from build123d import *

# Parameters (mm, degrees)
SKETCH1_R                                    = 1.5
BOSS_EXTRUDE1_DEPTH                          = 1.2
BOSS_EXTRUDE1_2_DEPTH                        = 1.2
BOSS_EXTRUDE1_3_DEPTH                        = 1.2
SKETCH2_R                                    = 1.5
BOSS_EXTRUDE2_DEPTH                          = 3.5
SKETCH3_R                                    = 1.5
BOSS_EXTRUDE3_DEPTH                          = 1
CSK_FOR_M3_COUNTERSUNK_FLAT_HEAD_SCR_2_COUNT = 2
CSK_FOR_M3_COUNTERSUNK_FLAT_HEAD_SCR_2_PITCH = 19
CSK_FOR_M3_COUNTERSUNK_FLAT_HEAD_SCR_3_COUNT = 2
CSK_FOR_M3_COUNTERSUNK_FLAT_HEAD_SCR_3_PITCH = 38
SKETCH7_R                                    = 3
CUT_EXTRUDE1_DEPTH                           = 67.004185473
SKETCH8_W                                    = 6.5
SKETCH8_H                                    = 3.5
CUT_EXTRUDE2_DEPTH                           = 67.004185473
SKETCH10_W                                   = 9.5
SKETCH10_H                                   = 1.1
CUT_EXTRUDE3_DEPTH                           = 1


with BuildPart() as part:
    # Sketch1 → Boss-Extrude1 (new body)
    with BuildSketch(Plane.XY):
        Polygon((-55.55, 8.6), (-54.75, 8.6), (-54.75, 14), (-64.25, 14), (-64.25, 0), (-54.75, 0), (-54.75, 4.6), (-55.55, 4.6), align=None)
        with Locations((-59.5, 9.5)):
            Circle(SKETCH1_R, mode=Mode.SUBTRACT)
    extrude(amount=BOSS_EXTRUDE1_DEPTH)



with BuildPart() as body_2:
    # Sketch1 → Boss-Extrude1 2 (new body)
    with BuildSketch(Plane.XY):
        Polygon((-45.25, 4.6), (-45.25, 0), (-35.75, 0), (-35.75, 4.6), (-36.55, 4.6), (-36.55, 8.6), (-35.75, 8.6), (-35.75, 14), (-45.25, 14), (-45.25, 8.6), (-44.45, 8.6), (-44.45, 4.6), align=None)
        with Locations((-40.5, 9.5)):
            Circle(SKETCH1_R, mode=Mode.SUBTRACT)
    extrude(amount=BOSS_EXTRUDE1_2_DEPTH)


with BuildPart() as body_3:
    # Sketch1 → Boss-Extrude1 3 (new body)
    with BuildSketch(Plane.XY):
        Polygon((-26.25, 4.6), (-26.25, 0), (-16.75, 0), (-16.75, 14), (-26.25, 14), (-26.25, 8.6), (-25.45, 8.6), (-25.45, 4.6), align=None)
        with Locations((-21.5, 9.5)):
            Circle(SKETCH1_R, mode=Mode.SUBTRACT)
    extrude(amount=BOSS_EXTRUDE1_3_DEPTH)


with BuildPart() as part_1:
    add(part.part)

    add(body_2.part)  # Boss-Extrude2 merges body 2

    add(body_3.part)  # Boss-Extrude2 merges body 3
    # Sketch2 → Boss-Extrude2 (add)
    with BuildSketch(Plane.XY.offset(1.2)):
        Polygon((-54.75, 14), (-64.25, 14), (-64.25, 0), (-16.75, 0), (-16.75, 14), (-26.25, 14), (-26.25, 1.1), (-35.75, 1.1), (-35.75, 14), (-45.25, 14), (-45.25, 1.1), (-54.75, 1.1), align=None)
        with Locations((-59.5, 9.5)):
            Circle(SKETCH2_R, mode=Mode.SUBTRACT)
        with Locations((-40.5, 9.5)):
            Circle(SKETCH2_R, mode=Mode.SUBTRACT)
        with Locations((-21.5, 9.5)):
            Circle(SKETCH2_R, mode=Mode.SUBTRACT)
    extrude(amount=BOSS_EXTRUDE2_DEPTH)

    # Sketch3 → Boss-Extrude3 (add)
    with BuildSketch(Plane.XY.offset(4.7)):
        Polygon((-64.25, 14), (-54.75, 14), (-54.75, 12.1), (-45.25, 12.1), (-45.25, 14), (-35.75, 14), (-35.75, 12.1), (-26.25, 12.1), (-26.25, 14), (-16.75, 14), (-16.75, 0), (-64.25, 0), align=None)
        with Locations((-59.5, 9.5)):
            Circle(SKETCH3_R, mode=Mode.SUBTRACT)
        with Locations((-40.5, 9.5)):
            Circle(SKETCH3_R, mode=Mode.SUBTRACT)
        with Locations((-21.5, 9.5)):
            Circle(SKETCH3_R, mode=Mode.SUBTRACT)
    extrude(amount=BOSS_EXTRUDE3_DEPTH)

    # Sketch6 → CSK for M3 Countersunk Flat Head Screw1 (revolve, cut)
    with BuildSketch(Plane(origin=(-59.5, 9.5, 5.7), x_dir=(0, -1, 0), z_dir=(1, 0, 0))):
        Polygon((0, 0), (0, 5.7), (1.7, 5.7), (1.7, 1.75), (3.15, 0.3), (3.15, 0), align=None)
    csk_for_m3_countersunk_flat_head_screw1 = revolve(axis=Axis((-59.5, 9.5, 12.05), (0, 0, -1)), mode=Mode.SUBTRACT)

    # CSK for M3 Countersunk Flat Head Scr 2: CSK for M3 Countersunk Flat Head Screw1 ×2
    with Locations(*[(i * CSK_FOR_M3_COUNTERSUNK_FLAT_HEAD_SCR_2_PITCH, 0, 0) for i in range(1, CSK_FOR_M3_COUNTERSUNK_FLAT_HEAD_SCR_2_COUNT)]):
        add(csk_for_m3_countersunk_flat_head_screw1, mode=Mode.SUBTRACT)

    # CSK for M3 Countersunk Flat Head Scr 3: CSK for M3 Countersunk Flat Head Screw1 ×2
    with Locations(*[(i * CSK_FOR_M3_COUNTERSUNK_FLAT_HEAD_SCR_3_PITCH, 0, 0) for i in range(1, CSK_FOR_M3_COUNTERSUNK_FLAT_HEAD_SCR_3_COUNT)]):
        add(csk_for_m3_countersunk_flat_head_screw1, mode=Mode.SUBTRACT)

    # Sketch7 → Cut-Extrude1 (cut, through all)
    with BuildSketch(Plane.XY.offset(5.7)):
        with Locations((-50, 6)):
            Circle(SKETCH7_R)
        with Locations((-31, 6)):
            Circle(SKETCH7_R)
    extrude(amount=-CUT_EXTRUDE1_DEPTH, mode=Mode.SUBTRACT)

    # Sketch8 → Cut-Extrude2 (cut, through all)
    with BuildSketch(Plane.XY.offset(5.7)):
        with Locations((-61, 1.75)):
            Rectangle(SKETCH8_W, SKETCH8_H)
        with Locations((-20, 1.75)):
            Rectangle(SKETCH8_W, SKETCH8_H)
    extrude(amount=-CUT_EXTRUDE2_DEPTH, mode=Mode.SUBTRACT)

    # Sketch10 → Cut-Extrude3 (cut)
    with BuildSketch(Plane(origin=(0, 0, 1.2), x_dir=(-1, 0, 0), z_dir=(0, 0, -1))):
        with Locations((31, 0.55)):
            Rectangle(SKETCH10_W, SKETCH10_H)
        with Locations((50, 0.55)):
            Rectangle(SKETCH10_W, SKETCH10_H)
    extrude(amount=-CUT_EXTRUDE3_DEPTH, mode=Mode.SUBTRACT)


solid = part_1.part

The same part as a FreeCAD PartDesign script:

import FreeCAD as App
import Part
import Sketcher
Q = App.Units.Quantity


def add_polygon(sketch, points):
    """Adds a closed chain of lines whose ends are joined by coincident constraints."""
    first, n = sketch.GeometryCount, len(points)
    for a, b in zip(points, points[1:] + points[:1]):
        sketch.addGeometry(Part.LineSegment(App.Vector(*a, 0), App.Vector(*b, 0)), False)
    for i in range(n):
        sketch.addConstraint(Sketcher.Constraint("Coincident", first + i, 2, first + (i + 1) % n, 1))

doc = App.newDocument("Part")
params = doc.addObject("Spreadsheet::Sheet", "Params")
for row, (alias, value) in enumerate([
    ("sketch1_diameter", "3 mm"),
    ("sketch1_height", "14 mm"),
    ("sketch1_height2", "4 mm"),
    ("sketch1_width", "0.8 mm"),
    ("sketch1_width2", "9.5 mm"),
    ("pad1_length", "1.2 mm"),
    ("sketch2_diameter", "3 mm"),
    ("sketch2_height", "4 mm"),
    ("sketch2_width", "9.5 mm"),
    ("sketch2_width2", "0.8 mm"),
    ("sketch2_height2", "4.6 mm"),
    ("pad2_length", "1.2 mm"),
    ("sketch3_diameter", "3 mm"),
    ("sketch3_height", "14 mm"),
    ("sketch3_height2", "4 mm"),
    ("sketch3_width", "9.5 mm"),
    ("sketch3_width2", "0.8 mm"),
    ("pad3_length", "1.2 mm"),
    ("sketch4_diameter", "3 mm"),
    ("sketch4_height", "14 mm"),
    ("sketch4_width", "9.5 mm"),
    ("sketch4_height2", "12.9 mm"),
    ("pad4_length", "3.5 mm"),
    ("sketch5_diameter", "3 mm"),
    ("sketch5_height", "14 mm"),
    ("sketch5_width", "9.5 mm"),
    ("sketch5_height2", "1.9 mm"),
    ("pad5_length", "1 mm"),
    ("sketch6_width", "1.7 mm"),
    ("sketch6_height", "5.7 mm"),
    ("sketch6_height2", "0.3 mm"),
    ("sketch6_width2", "3.15 mm"),
    ("groove_angle", "360 deg"),
    ("linearpattern_pitch", "19 mm"),
    ("linearpattern2_pitch", "38 mm"),
    ("sketch7_diameter", "6 mm"),
    ("sketch8_width", "6.5 mm"),
    ("sketch8_height", "3.5 mm"),
    ("sketch9_width", "9.5 mm"),
    ("sketch9_height", "1.1 mm"),
    ("pocket3_length", "1 mm"),
], start=1):
    params.set(f"A{row}", alias)
    params.set(f"B{row}", "=" + value)
    params.setAlias(f"B{row}", alias)

body = doc.addObject("PartDesign::Body", "Body")

# Sketch on XY plane
sketch1 = body.newObject("Sketcher::SketchObject", "Sketch")
sketch1.AttachmentSupport = (doc.getObject("XY_Plane"), [""])
sketch1.MapMode = "FlatFace"
add_polygon(sketch1, [(-55.55, 8.6), (-54.75, 8.6), (-54.75, 14), (-64.25, 14), (-64.25, 0), (-54.75, 0), (-54.75, 4.6), (-55.55, 4.6)])  # lines 0-7
sketch1.addGeometry(Part.Circle(App.Vector(-59.5, 9.5, 0), App.Vector(0, 0, 1), 1.5), False)  # 8
sketch1.addConstraint(Sketcher.Constraint("Horizontal", 0))
sketch1.addConstraint(Sketcher.Constraint("Vertical", 1))
sketch1.addConstraint(Sketcher.Constraint("Horizontal", 2))
sketch1.addConstraint(Sketcher.Constraint("Vertical", 3))
sketch1.addConstraint(Sketcher.Constraint("Horizontal", 4))
sketch1.addConstraint(Sketcher.Constraint("Vertical", 5))
sketch1.addConstraint(Sketcher.Constraint("Horizontal", 6))
sketch1.addConstraint(Sketcher.Constraint("Vertical", 7))
sketch1.addConstraint(Sketcher.Constraint("PointOnObject", 3, 2, -1))
sketch1.addConstraint(Sketcher.Constraint("Vertical", 1, 2, 4, 2))
sketch1.addConstraint(Sketcher.Constraint("Diameter", 8, Q("3 mm")))
sketch1.addConstraint(Sketcher.Constraint("DistanceY", 3, 2, 3, 1, Q("14 mm")))
sketch1.addConstraint(Sketcher.Constraint("DistanceY", 7, 1, 7, 2, Q("4 mm")))
sketch1.addConstraint(Sketcher.Constraint("DistanceX", 0, 1, 0, 2, Q("0.8 mm")))
sketch1.addConstraint(Sketcher.Constraint("DistanceX", 2, 2, 2, 1, Q("9.5 mm")))
sketch1.addConstraint(Sketcher.Constraint("DistanceY", 1, 1, 1, 2, Q("5.4 mm")))
sketch1.addConstraint(Sketcher.Constraint("DistanceX", 8, 3, -1, 1, Q("59.5 mm")))
sketch1.addConstraint(Sketcher.Constraint("DistanceY", -1, 1, 8, 3, Q("9.5 mm")))
sketch1.addConstraint(Sketcher.Constraint("DistanceX", 0, 2, -1, 1, Q("54.75 mm")))
sketch1.setExpression("Constraints[18]", "Params.sketch1_diameter")
sketch1.setExpression("Constraints[19]", "Params.sketch1_height")
sketch1.setExpression("Constraints[20]", "Params.sketch1_height2")
sketch1.setExpression("Constraints[21]", "Params.sketch1_width")
sketch1.setExpression("Constraints[22]", "Params.sketch1_width2")
pad1 = body.newObject("PartDesign::Pad", "Pad")
pad1.Profile = sketch1
pad1.setExpression("Length", "Params.pad1_length")
body2 = doc.addObject("PartDesign::Body", "Body001")

# Sketch on XY plane
sketch2 = body2.newObject("Sketcher::SketchObject", "Sketch001")
sketch2.AttachmentSupport = (doc.getObject("XY_Plane001"), [""])
sketch2.MapMode = "FlatFace"
add_polygon(sketch2, [(-45.25, 4.6), (-45.25, 0), (-35.75, 0), (-35.75, 4.6), (-36.55, 4.6), (-36.55, 8.6), (-35.75, 8.6), (-35.75, 14), (-45.25, 14), (-45.25, 8.6), (-44.45, 8.6), (-44.45, 4.6)])  # lines 0-11
sketch2.addGeometry(Part.Circle(App.Vector(-40.5, 9.5, 0), App.Vector(0, 0, 1), 1.5), False)  # 12
sketch2.addConstraint(Sketcher.Constraint("Vertical", 0))
sketch2.addConstraint(Sketcher.Constraint("Horizontal", 1))
sketch2.addConstraint(Sketcher.Constraint("Vertical", 2))
sketch2.addConstraint(Sketcher.Constraint("Horizontal", 3))
sketch2.addConstraint(Sketcher.Constraint("Vertical", 4))
sketch2.addConstraint(Sketcher.Constraint("Horizontal", 5))
sketch2.addConstraint(Sketcher.Constraint("Vertical", 6))
sketch2.addConstraint(Sketcher.Constraint("Horizontal", 7))
sketch2.addConstraint(Sketcher.Constraint("Vertical", 8))
sketch2.addConstraint(Sketcher.Constraint("Horizontal", 9))
sketch2.addConstraint(Sketcher.Constraint("Vertical", 10))
sketch2.addConstraint(Sketcher.Constraint("Horizontal", 11))
sketch2.addConstraint(Sketcher.Constraint("PointOnObject", 0, 2, -1))
sketch2.addConstraint(Sketcher.Constraint("Horizontal", 5, 2, 8, 2))
sketch2.addConstraint(Sketcher.Constraint("Horizontal", 3, 2, 10, 2))
sketch2.addConstraint(Sketcher.Constraint("Vertical", 2, 2, 5, 2))
sketch2.addConstraint(Sketcher.Constraint("Vertical", 0, 2, 7, 2))
sketch2.addConstraint(Sketcher.Constraint("Equal", 5, 9))
sketch2.addConstraint(Sketcher.Constraint("Diameter", 12, Q("3 mm")))
sketch2.addConstraint(Sketcher.Constraint("DistanceY", 4, 1, 4, 2, Q("4 mm")))
sketch2.addConstraint(Sketcher.Constraint("DistanceX", 1, 1, 1, 2, Q("9.5 mm")))
sketch2.addConstraint(Sketcher.Constraint("DistanceX", 3, 2, 3, 1, Q("0.8 mm")))
sketch2.addConstraint(Sketcher.Constraint("DistanceY", 0, 2, 0, 1, Q("4.6 mm")))
sketch2.addConstraint(Sketcher.Constraint("DistanceY", 6, 1, 6, 2, Q("5.4 mm")))
sketch2.addConstraint(Sketcher.Constraint("DistanceX", 12, 3, -1, 1, Q("40.5 mm")))
sketch2.addConstraint(Sketcher.Constraint("DistanceY", -1, 1, 12, 3, Q("9.5 mm")))
sketch2.addConstraint(Sketcher.Constraint("DistanceX", 0, 2, -1, 1, Q("45.25 mm")))
sketch2.setExpression("Constraints[30]", "Params.sketch2_diameter")
sketch2.setExpression("Constraints[31]", "Params.sketch2_height")
sketch2.setExpression("Constraints[32]", "Params.sketch2_width")
sketch2.setExpression("Constraints[33]", "Params.sketch2_width2")
sketch2.setExpression("Constraints[34]", "Params.sketch2_height2")
pad2 = body2.newObject("PartDesign::Pad", "Pad001")
pad2.Profile = sketch2
pad2.setExpression("Length", "Params.pad2_length")
body3 = doc.addObject("PartDesign::Body", "Body002")

# Sketch on XY plane
sketch3 = body3.newObject("Sketcher::SketchObject", "Sketch002")
sketch3.AttachmentSupport = (doc.getObject("XY_Plane002"), [""])
sketch3.MapMode = "FlatFace"
add_polygon(sketch3, [(-26.25, 4.6), (-26.25, 0), (-16.75, 0), (-16.75, 14), (-26.25, 14), (-26.25, 8.6), (-25.45, 8.6), (-25.45, 4.6)])  # lines 0-7
sketch3.addGeometry(Part.Circle(App.Vector(-21.5, 9.5, 0), App.Vector(0, 0, 1), 1.5), False)  # 8
sketch3.addConstraint(Sketcher.Constraint("Vertical", 0))
sketch3.addConstraint(Sketcher.Constraint("Horizontal", 1))
sketch3.addConstraint(Sketcher.Constraint("Vertical", 2))
sketch3.addConstraint(Sketcher.Constraint("Horizontal", 3))
sketch3.addConstraint(Sketcher.Constraint("Vertical", 4))
sketch3.addConstraint(Sketcher.Constraint("Horizontal", 5))
sketch3.addConstraint(Sketcher.Constraint("Vertical", 6))
sketch3.addConstraint(Sketcher.Constraint("Horizontal", 7))
sketch3.addConstraint(Sketcher.Constraint("PointOnObject", 0, 2, -1))
sketch3.addConstraint(Sketcher.Constraint("Vertical", 0, 2, 3, 2))
sketch3.addConstraint(Sketcher.Constraint("Diameter", 8, Q("3 mm")))
sketch3.addConstraint(Sketcher.Constraint("DistanceY", 2, 1, 2, 2, Q("14 mm")))
sketch3.addConstraint(Sketcher.Constraint("DistanceY", 6, 2, 6, 1, Q("4 mm")))
sketch3.addConstraint(Sketcher.Constraint("DistanceX", 1, 1, 1, 2, Q("9.5 mm")))
sketch3.addConstraint(Sketcher.Constraint("DistanceX", 5, 1, 5, 2, Q("0.8 mm")))
sketch3.addConstraint(Sketcher.Constraint("DistanceY", 0, 2, 0, 1, Q("4.6 mm")))
sketch3.addConstraint(Sketcher.Constraint("DistanceX", 8, 3, -1, 1, Q("21.5 mm")))
sketch3.addConstraint(Sketcher.Constraint("DistanceY", -1, 1, 8, 3, Q("9.5 mm")))
sketch3.addConstraint(Sketcher.Constraint("DistanceX", 0, 2, -1, 1, Q("26.25 mm")))
sketch3.setExpression("Constraints[18]", "Params.sketch3_diameter")
sketch3.setExpression("Constraints[19]", "Params.sketch3_height")
sketch3.setExpression("Constraints[20]", "Params.sketch3_height2")
sketch3.setExpression("Constraints[21]", "Params.sketch3_width")
sketch3.setExpression("Constraints[22]", "Params.sketch3_width2")
pad3 = body3.newObject("PartDesign::Pad", "Pad002")
pad3.Profile = sketch3
pad3.setExpression("Length", "Params.pad3_length")
body.AllowCompound = True
doc.recompute()

boolean = body.newObject("PartDesign::Boolean", "Boolean")
boolean.Type = "Fuse"
boolean.addObjects([body2])
doc.recompute()

boolean2 = body.newObject("PartDesign::Boolean", "Boolean001")
boolean2.Type = "Fuse"
boolean2.addObjects([body3])

# Sketch on XY plane
sketch4 = body.newObject("Sketcher::SketchObject", "Sketch003")
sketch4.AttachmentSupport = (doc.getObject("XY_Plane"), [""])
sketch4.MapMode = "FlatFace"
sketch4.AttachmentOffset = App.Placement(App.Vector(0, 0, 1.2), App.Rotation())
add_polygon(sketch4, [(-54.75, 14), (-64.25, 14), (-64.25, 0), (-16.75, 0), (-16.75, 14), (-26.25, 14), (-26.25, 1.1), (-35.75, 1.1), (-35.75, 14), (-45.25, 14), (-45.25, 1.1), (-54.75, 1.1)])  # lines 0-11
sketch4.addGeometry(Part.Circle(App.Vector(-59.5, 9.5, 0), App.Vector(0, 0, 1), 1.5), False)  # 12
sketch4.addGeometry(Part.Circle(App.Vector(-40.5, 9.5, 0), App.Vector(0, 0, 1), 1.5), False)  # 13
sketch4.addGeometry(Part.Circle(App.Vector(-21.5, 9.5, 0), App.Vector(0, 0, 1), 1.5), False)  # 14
sketch4.addConstraint(Sketcher.Constraint("Horizontal", 0))
sketch4.addConstraint(Sketcher.Constraint("Vertical", 1))
sketch4.addConstraint(Sketcher.Constraint("Horizontal", 2))
sketch4.addConstraint(Sketcher.Constraint("Vertical", 3))
sketch4.addConstraint(Sketcher.Constraint("Horizontal", 4))
sketch4.addConstraint(Sketcher.Constraint("Vertical", 5))
sketch4.addConstraint(Sketcher.Constraint("Horizontal", 6))
sketch4.addConstraint(Sketcher.Constraint("Vertical", 7))
sketch4.addConstraint(Sketcher.Constraint("Horizontal", 8))
sketch4.addConstraint(Sketcher.Constraint("Vertical", 9))
sketch4.addConstraint(Sketcher.Constraint("Horizontal", 10))
sketch4.addConstraint(Sketcher.Constraint("Vertical", 11))
sketch4.addConstraint(Sketcher.Constraint("Equal", 12, 13))
sketch4.addConstraint(Sketcher.Constraint("Equal", 13, 14))
sketch4.addConstraint(Sketcher.Constraint("PointOnObject", 1, 2, -1))
sketch4.addConstraint(Sketcher.Constraint("Horizontal", 12, 3, 13, 3))
sketch4.addConstraint(Sketcher.Constraint("Horizontal", 13, 3, 14, 3))
sketch4.addConstraint(Sketcher.Constraint("Horizontal", 0, 2, 3, 2))
sketch4.addConstraint(Sketcher.Constraint("Horizontal", 4, 2, 7, 2))
sketch4.addConstraint(Sketcher.Constraint("Horizontal", 6, 2, 9, 2))
sketch4.addConstraint(Sketcher.Constraint("Equal", 0, 4))
sketch4.addConstraint(Sketcher.Constraint("Equal", 4, 6))
sketch4.addConstraint(Sketcher.Constraint("Equal", 6, 8))
sketch4.addConstraint(Sketcher.Constraint("Equal", 8, 10))
sketch4.addConstraint(Sketcher.Constraint("Diameter", 12, Q("3 mm")))
sketch4.addConstraint(Sketcher.Constraint("DistanceY", 1, 2, 1, 1, Q("14 mm")))
sketch4.addConstraint(Sketcher.Constraint("DistanceX", 0, 2, 0, 1, Q("9.5 mm")))
sketch4.addConstraint(Sketcher.Constraint("DistanceY", 5, 2, 5, 1, Q("12.9 mm")))
sketch4.addConstraint(Sketcher.Constraint("DistanceX", 12, 3, 13, 3, Q("19 mm")))
sketch4.addConstraint(Sketcher.Constraint("DistanceX", 13, 3, 14, 3, Q("19 mm")))
sketch4.addConstraint(Sketcher.Constraint("DistanceX", 12, 3, -1, 1, Q("59.5 mm")))
sketch4.addConstraint(Sketcher.Constraint("DistanceY", -1, 1, 12, 3, Q("9.5 mm")))
sketch4.addConstraint(Sketcher.Constraint("DistanceX", 0, 2, -1, 1, Q("64.25 mm")))
sketch4.setExpression("Constraints[36]", "Params.sketch4_diameter")
sketch4.setExpression("Constraints[37]", "Params.sketch4_height")
sketch4.setExpression("Constraints[38]", "Params.sketch4_width")
sketch4.setExpression("Constraints[39]", "Params.sketch4_height2")
pad4 = body.newObject("PartDesign::Pad", "Pad003")
pad4.Profile = sketch4
pad4.setExpression("Length", "Params.pad4_length")

# Sketch on XY plane
sketch5 = body.newObject("Sketcher::SketchObject", "Sketch004")
sketch5.AttachmentSupport = (doc.getObject("XY_Plane"), [""])
sketch5.MapMode = "FlatFace"
sketch5.AttachmentOffset = App.Placement(App.Vector(0, 0, 4.7), App.Rotation())
add_polygon(sketch5, [(-54.75, 14), (-64.25, 14), (-64.25, 0), (-16.75, 0), (-16.75, 14), (-26.25, 14), (-26.25, 12.1), (-35.75, 12.1), (-35.75, 14), (-45.25, 14), (-45.25, 12.1), (-54.75, 12.1)])  # lines 0-11
sketch5.addGeometry(Part.Circle(App.Vector(-21.5, 9.5, 0), App.Vector(0, 0, 1), 1.5), False)  # 12
sketch5.addGeometry(Part.Circle(App.Vector(-40.5, 9.5, 0), App.Vector(0, 0, 1), 1.5), False)  # 13
sketch5.addGeometry(Part.Circle(App.Vector(-59.5, 9.5, 0), App.Vector(0, 0, 1), 1.5), False)  # 14
sketch5.addConstraint(Sketcher.Constraint("Horizontal", 0))
sketch5.addConstraint(Sketcher.Constraint("Vertical", 1))
sketch5.addConstraint(Sketcher.Constraint("Horizontal", 2))
sketch5.addConstraint(Sketcher.Constraint("Vertical", 3))
sketch5.addConstraint(Sketcher.Constraint("Horizontal", 4))
sketch5.addConstraint(Sketcher.Constraint("Vertical", 5))
sketch5.addConstraint(Sketcher.Constraint("Horizontal", 6))
sketch5.addConstraint(Sketcher.Constraint("Vertical", 7))
sketch5.addConstraint(Sketcher.Constraint("Horizontal", 8))
sketch5.addConstraint(Sketcher.Constraint("Vertical", 9))
sketch5.addConstraint(Sketcher.Constraint("Horizontal", 10))
sketch5.addConstraint(Sketcher.Constraint("Vertical", 11))
sketch5.addConstraint(Sketcher.Constraint("Equal", 12, 13))
sketch5.addConstraint(Sketcher.Constraint("Equal", 13, 14))
sketch5.addConstraint(Sketcher.Constraint("PointOnObject", 1, 2, -1))
sketch5.addConstraint(Sketcher.Constraint("Horizontal", 12, 3, 13, 3))
sketch5.addConstraint(Sketcher.Constraint("Horizontal", 13, 3, 14, 3))
sketch5.addConstraint(Sketcher.Constraint("Horizontal", 0, 2, 3, 2))
sketch5.addConstraint(Sketcher.Constraint("Horizontal", 4, 2, 7, 2))
sketch5.addConstraint(Sketcher.Constraint("Horizontal", 6, 2, 9, 2))
sketch5.addConstraint(Sketcher.Constraint("Equal", 0, 4))
sketch5.addConstraint(Sketcher.Constraint("Equal", 4, 6))
sketch5.addConstraint(Sketcher.Constraint("Equal", 6, 8))
sketch5.addConstraint(Sketcher.Constraint("Equal", 8, 10))
sketch5.addConstraint(Sketcher.Constraint("Diameter", 12, Q("3 mm")))
sketch5.addConstraint(Sketcher.Constraint("DistanceY", 1, 2, 1, 1, Q("14 mm")))
sketch5.addConstraint(Sketcher.Constraint("DistanceX", 0, 2, 0, 1, Q("9.5 mm")))
sketch5.addConstraint(Sketcher.Constraint("DistanceY", 5, 2, 5, 1, Q("1.9 mm")))
sketch5.addConstraint(Sketcher.Constraint("DistanceX", 13, 3, 12, 3, Q("19 mm")))
sketch5.addConstraint(Sketcher.Constraint("DistanceX", 14, 3, 13, 3, Q("19 mm")))
sketch5.addConstraint(Sketcher.Constraint("DistanceX", 12, 3, -1, 1, Q("21.5 mm")))
sketch5.addConstraint(Sketcher.Constraint("DistanceY", -1, 1, 12, 3, Q("9.5 mm")))
sketch5.addConstraint(Sketcher.Constraint("DistanceX", 0, 2, -1, 1, Q("64.25 mm")))
sketch5.setExpression("Constraints[36]", "Params.sketch5_diameter")
sketch5.setExpression("Constraints[37]", "Params.sketch5_height")
sketch5.setExpression("Constraints[38]", "Params.sketch5_width")
sketch5.setExpression("Constraints[39]", "Params.sketch5_height2")
pad5 = body.newObject("PartDesign::Pad", "Pad004")
pad5.Profile = sketch5
pad5.setExpression("Length", "Params.pad5_length")

# Sketch on YZ plane
sketch6 = body.newObject("Sketcher::SketchObject", "Sketch005")
sketch6.AttachmentSupport = (doc.getObject("YZ_Plane"), [""])
sketch6.MapMode = "FlatFace"
sketch6.AttachmentOffset = App.Placement(App.Vector(0, 0, -59.5), App.Rotation())
add_polygon(sketch6, [(9.5, 0), (9.5, 5.7), (6.35, 5.7), (6.35, 5.4), (7.8, 3.95), (7.8, 0)])  # lines 0-5
sketch6.addGeometry(Part.LineSegment(App.Vector(9.5, 5.7, 0), App.Vector(9.5, 0, 0)), True)  # axis
sketch6.addConstraint(Sketcher.Constraint("Vertical", 0))
sketch6.addConstraint(Sketcher.Constraint("Horizontal", 1))
sketch6.addConstraint(Sketcher.Constraint("Vertical", 2))
sketch6.addConstraint(Sketcher.Constraint("Vertical", 4))
sketch6.addConstraint(Sketcher.Constraint("Horizontal", 5))
sketch6.addConstraint(Sketcher.Constraint("Vertical", 6))
sketch6.addConstraint(Sketcher.Constraint("Coincident", 6, 1, 0, 2))
sketch6.addConstraint(Sketcher.Constraint("PointOnObject", 4, 2, -1))
sketch6.addConstraint(Sketcher.Constraint("PointOnObject", 6, 2, -1))
sketch6.addConstraint(Sketcher.Constraint("Angle", 3, Q("-45 deg")))
sketch6.addConstraint(Sketcher.Constraint("DistanceX", 5, 1, 5, 2, Q("1.7 mm")))
sketch6.addConstraint(Sketcher.Constraint("DistanceY", 0, 1, 0, 2, Q("5.7 mm")))
sketch6.addConstraint(Sketcher.Constraint("DistanceY", 2, 2, 2, 1, Q("0.3 mm")))
sketch6.addConstraint(Sketcher.Constraint("DistanceX", 1, 2, 1, 1, Q("3.15 mm")))
sketch6.addConstraint(Sketcher.Constraint("DistanceX", -1, 1, 0, 2, Q("9.5 mm")))
sketch6.setExpression("Constraints[16]", "Params.sketch6_width")
sketch6.setExpression("Constraints[17]", "Params.sketch6_height")
sketch6.setExpression("Constraints[18]", "Params.sketch6_height2")
sketch6.setExpression("Constraints[19]", "Params.sketch6_width2")
groove = body.newObject("PartDesign::Groove", "Groove")
groove.Profile = sketch6
groove.ReferenceAxis = (sketch6, ["Axis0"])
groove.setExpression("Angle", "Params.groove_angle")
doc.recompute()

linearpattern = body.newObject("PartDesign::LinearPattern", "LinearPattern")
linearpattern.Originals = [groove]
linearpattern.Direction = (doc.getObject("X_Axis"), [""])
linearpattern.Mode = "offset"
linearpattern.setExpression("Offset", "Params.linearpattern_pitch")
linearpattern.Occurrences = 2
body.Tip = linearpattern
doc.recompute()

linearpattern2 = body.newObject("PartDesign::LinearPattern", "LinearPattern001")
linearpattern2.Originals = [groove]
linearpattern2.Direction = (doc.getObject("X_Axis"), [""])
linearpattern2.Mode = "offset"
linearpattern2.setExpression("Offset", "Params.linearpattern2_pitch")
linearpattern2.Occurrences = 2
body.Tip = linearpattern2

# Sketch on XY plane
sketch7 = body.newObject("Sketcher::SketchObject", "Sketch006")
sketch7.AttachmentSupport = (doc.getObject("XY_Plane"), [""])
sketch7.MapMode = "FlatFace"
sketch7.AttachmentOffset = App.Placement(App.Vector(0, 0, 5.7), App.Rotation())
sketch7.addGeometry(Part.Circle(App.Vector(-50, 6, 0), App.Vector(0, 0, 1), 3), False)
sketch7.addGeometry(Part.Circle(App.Vector(-31, 6, 0), App.Vector(0, 0, 1), 3), False)
sketch7.addConstraint(Sketcher.Constraint("Equal", 0, 1))
sketch7.addConstraint(Sketcher.Constraint("Horizontal", 0, 3, 1, 3))
sketch7.addConstraint(Sketcher.Constraint("Diameter", 0, Q("6 mm")))
sketch7.addConstraint(Sketcher.Constraint("DistanceX", 0, 3, -1, 1, Q("50 mm")))
sketch7.addConstraint(Sketcher.Constraint("DistanceY", -1, 1, 0, 3, Q("6 mm")))
sketch7.addConstraint(Sketcher.Constraint("DistanceX", 1, 3, -1, 1, Q("31 mm")))
sketch7.setExpression("Constraints[2]", "Params.sketch7_diameter")
pocket1 = body.newObject("PartDesign::Pocket", "Pocket")
pocket1.Profile = sketch7
pocket1.Type = "ThroughAll"

# Sketch on XY plane
sketch8 = body.newObject("Sketcher::SketchObject", "Sketch007")
sketch8.AttachmentSupport = (doc.getObject("XY_Plane"), [""])
sketch8.MapMode = "FlatFace"
sketch8.AttachmentOffset = App.Placement(App.Vector(0, 0, 5.7), App.Rotation())
add_polygon(sketch8, [(-64.25, 3.5), (-64.25, 0), (-57.75, 0), (-57.75, 3.5)])  # lines 0-3
add_polygon(sketch8, [(-23.25, 3.5), (-23.25, 0), (-16.75, 0), (-16.75, 3.5)])  # lines 4-7
sketch8.addConstraint(Sketcher.Constraint("Vertical", 0))
sketch8.addConstraint(Sketcher.Constraint("Horizontal", 1))
sketch8.addConstraint(Sketcher.Constraint("Vertical", 2))
sketch8.addConstraint(Sketcher.Constraint("Horizontal", 3))
sketch8.addConstraint(Sketcher.Constraint("Vertical", 4))
sketch8.addConstraint(Sketcher.Constraint("Horizontal", 5))
sketch8.addConstraint(Sketcher.Constraint("Vertical", 6))
sketch8.addConstraint(Sketcher.Constraint("Horizontal", 7))
sketch8.addConstraint(Sketcher.Constraint("PointOnObject", 0, 2, -1))
sketch8.addConstraint(Sketcher.Constraint("PointOnObject", 4, 2, -1))
sketch8.addConstraint(Sketcher.Constraint("Horizontal", 3, 2, 6, 2))
sketch8.addConstraint(Sketcher.Constraint("Equal", 3, 5))
sketch8.addConstraint(Sketcher.Constraint("DistanceX", 1, 1, 1, 2, Q("6.5 mm")))
sketch8.addConstraint(Sketcher.Constraint("DistanceY", 0, 2, 0, 1, Q("3.5 mm")))
sketch8.addConstraint(Sketcher.Constraint("DistanceX", 0, 2, 4, 2, Q("41 mm")))
sketch8.addConstraint(Sketcher.Constraint("DistanceX", 0, 2, -1, 1, Q("64.25 mm")))
sketch8.setExpression("Constraints[20]", "Params.sketch8_width")
sketch8.setExpression("Constraints[21]", "Params.sketch8_height")
pocket2 = body.newObject("PartDesign::Pocket", "Pocket001")
pocket2.Profile = sketch8
pocket2.Type = "ThroughAll"

# Sketch on XY plane
sketch9 = body.newObject("Sketcher::SketchObject", "Sketch008")
sketch9.AttachmentSupport = (doc.getObject("XY_Plane"), [""])
sketch9.MapMode = "FlatFace"
sketch9.AttachmentOffset = App.Placement(App.Vector(0, 0, 1.2), App.Rotation())
add_polygon(sketch9, [(-26.25, 1.1), (-26.25, 0), (-35.75, 0), (-35.75, 1.1)])  # lines 0-3
add_polygon(sketch9, [(-45.25, 1.1), (-45.25, 0), (-54.75, 0), (-54.75, 1.1)])  # lines 4-7
sketch9.addConstraint(Sketcher.Constraint("Vertical", 0))
sketch9.addConstraint(Sketcher.Constraint("Horizontal", 1))
sketch9.addConstraint(Sketcher.Constraint("Vertical", 2))
sketch9.addConstraint(Sketcher.Constraint("Horizontal", 3))
sketch9.addConstraint(Sketcher.Constraint("Vertical", 4))
sketch9.addConstraint(Sketcher.Constraint("Horizontal", 5))
sketch9.addConstraint(Sketcher.Constraint("Vertical", 6))
sketch9.addConstraint(Sketcher.Constraint("Horizontal", 7))
sketch9.addConstraint(Sketcher.Constraint("PointOnObject", 0, 2, -1))
sketch9.addConstraint(Sketcher.Constraint("PointOnObject", 4, 2, -1))
sketch9.addConstraint(Sketcher.Constraint("Horizontal", 3, 2, 6, 2))
sketch9.addConstraint(Sketcher.Constraint("Equal", 3, 5))
sketch9.addConstraint(Sketcher.Constraint("DistanceX", 1, 2, 1, 1, Q("9.5 mm")))
sketch9.addConstraint(Sketcher.Constraint("DistanceY", 0, 2, 0, 1, Q("1.1 mm")))
sketch9.addConstraint(Sketcher.Constraint("DistanceX", 4, 2, 0, 2, Q("19 mm")))
sketch9.addConstraint(Sketcher.Constraint("DistanceX", 0, 2, -1, 1, Q("26.25 mm")))
sketch9.setExpression("Constraints[20]", "Params.sketch9_width")
sketch9.setExpression("Constraints[21]", "Params.sketch9_height")
pocket3 = body.newObject("PartDesign::Pocket", "Pocket002")
pocket3.Profile = sketch9
pocket3.setExpression("Length", "Params.pocket3_length")
pocket3.Reversed = True

doc.recompute()
